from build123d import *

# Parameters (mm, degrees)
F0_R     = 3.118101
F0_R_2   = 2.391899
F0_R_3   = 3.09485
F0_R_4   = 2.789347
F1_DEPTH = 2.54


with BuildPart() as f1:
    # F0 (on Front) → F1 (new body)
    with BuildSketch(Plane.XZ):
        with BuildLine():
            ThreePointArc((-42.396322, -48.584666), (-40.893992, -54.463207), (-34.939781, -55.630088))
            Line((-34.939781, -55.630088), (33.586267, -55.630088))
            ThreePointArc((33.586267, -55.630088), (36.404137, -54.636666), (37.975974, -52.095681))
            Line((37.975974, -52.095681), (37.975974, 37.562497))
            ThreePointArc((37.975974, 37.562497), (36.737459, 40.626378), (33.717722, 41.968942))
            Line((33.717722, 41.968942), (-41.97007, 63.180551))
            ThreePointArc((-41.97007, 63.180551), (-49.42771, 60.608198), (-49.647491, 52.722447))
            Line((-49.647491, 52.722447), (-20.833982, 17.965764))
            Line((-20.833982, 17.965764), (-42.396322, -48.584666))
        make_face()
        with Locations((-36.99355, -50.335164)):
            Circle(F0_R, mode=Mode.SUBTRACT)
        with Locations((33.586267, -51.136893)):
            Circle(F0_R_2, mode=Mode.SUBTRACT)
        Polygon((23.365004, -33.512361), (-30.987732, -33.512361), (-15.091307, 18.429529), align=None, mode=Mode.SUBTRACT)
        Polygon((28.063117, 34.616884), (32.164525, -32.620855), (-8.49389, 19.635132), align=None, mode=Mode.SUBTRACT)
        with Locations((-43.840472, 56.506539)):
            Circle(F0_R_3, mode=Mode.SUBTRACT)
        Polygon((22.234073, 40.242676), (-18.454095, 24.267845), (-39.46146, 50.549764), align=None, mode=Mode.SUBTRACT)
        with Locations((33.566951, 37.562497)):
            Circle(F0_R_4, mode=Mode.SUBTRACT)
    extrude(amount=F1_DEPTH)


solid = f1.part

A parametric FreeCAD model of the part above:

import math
import FreeCAD as App
import Part
import Sketcher
from FreeCAD import Vector


def add_polygon(sketch, points):
    """Adds a closed chain of lines whose ends are joined by coincident constraints."""
    first, n = sketch.GeometryCount, len(points)
    for a, b in zip(points, points[1:] + points[:1]):
        sketch.addGeometry(Part.LineSegment(App.Vector(*a, 0), App.Vector(*b, 0)), False)
    for i in range(n):
        sketch.addConstraint(Sketcher.Constraint("Coincident", first + i, 2, first + (i + 1) % n, 1))

doc = App.newDocument("Part")
params = doc.addObject("Spreadsheet::Sheet", "Params")
for row, (alias, value) in enumerate([
    ("pad1_length", "0.1 in"),
], start=1):
    params.set(f"A{row}", alias)
    params.set(f"B{row}", "=" + value)
    params.setAlias(f"B{row}", alias)

body = doc.addObject("PartDesign::Body", "Body")

# Sketch on XZ plane
sketch1 = body.newObject("Sketcher::SketchObject", "Sketch")
sketch1.AttachmentSupport = (doc.getObject("XZ_Plane"), [""])
sketch1.MapMode = "FlatFace"
sketch1.addGeometry(Part.ArcOfCircle(Part.Circle(Vector(-36.99355, -50.335164, 0), Vector(0, 0, 1), 5.679277), math.radians(162.047679), math.radians(291.20003)), False)  # 0
sketch1.addGeometry(Part.LineSegment(Vector(-34.939781, -55.630088, 0), Vector(33.586267, -55.630088, 0)), False)  # 1
sketch1.addGeometry(Part.ArcOfCircle(Part.Circle(Vector(33.586267, -51.136893, 0), Vector(0, 0, 1), 4.493195), math.radians(-90.000004), math.radians(-12.320892)), False)  # 2
sketch1.addGeometry(Part.LineSegment(Vector(37.975974, -52.095681, 0), Vector(37.975974, 37.562497, 0)), False)  # 3
sketch1.addGeometry(Part.ArcOfCircle(Part.Circle(Vector(33.566951, 37.562498, 0), Vector(0, 0, 1), 4.409023), math.radians(-0.000008), math.radians(88.040331)), False)  # 4
sketch1.addGeometry(Part.LineSegment(Vector(33.717722, 41.968942, 0), Vector(-41.97007, 63.180551, 0)), False)  # 5
sketch1.addGeometry(Part.ArcOfCircle(Part.Circle(Vector(-43.840472, 56.50654, 0), Vector(0, 0, 1), 6.931149), math.radians(74.34439), math.radians(213.089922)), False)  # 6
sketch1.addGeometry(Part.LineSegment(Vector(-49.647491, 52.722447, 0), Vector(-20.833982, 17.965764, 0)), False)  # 7
sketch1.addGeometry(Part.LineSegment(Vector(-20.833982, 17.965764, 0), Vector(-42.396322, -48.584666, 0)), False)  # 8
sketch1.addGeometry(Part.Circle(Vector(-36.99355, -50.335164, 0), Vector(0, 0, 1), 3.118101), False)  # 9
sketch1.addGeometry(Part.Circle(Vector(33.586267, -51.136893, 0), Vector(0, 0, 1), 2.391899), False)  # 10
add_polygon(sketch1, [(-15.091307, 18.429529), (23.365004, -33.512361), (-30.987732, -33.512361)])  # lines 11-13
add_polygon(sketch1, [(-8.49389, 19.635132), (28.063117, 34.616884), (32.164525, -32.620855)])  # lines 14-16
sketch1.addGeometry(Part.Circle(Vector(-43.840472, 56.506539, 0), Vector(0, 0, 1), 3.09485), False)  # 17
add_polygon(sketch1, [(-39.46146, 50.549764), (22.234073, 40.242676), (-18.454095, 24.267845)])  # lines 18-20
sketch1.addGeometry(Part.Circle(Vector(33.566951, 37.562497, 0), Vector(0, 0, 1), 2.789347), False)  # 21
sketch1.addConstraint(Sketcher.Constraint("Coincident", 0, 2, 1, 1))
sketch1.addConstraint(Sketcher.Constraint("Coincident", 1, 2, 2, 1))
sketch1.addConstraint(Sketcher.Constraint("Coincident", 2, 2, 3, 1))
sketch1.addConstraint(Sketcher.Constraint("Coincident", 3, 2, 4, 1))
sketch1.addConstraint(Sketcher.Constraint("Coincident", 4, 2, 5, 1))
sketch1.addConstraint(Sketcher.Constraint("Coincident", 5, 2, 6, 1))
sketch1.addConstraint(Sketcher.Constraint("Coincident", 6, 2, 7, 1))
sketch1.addConstraint(Sketcher.Constraint("Coincident", 7, 2, 8, 1))
sketch1.addConstraint(Sketcher.Constraint("Coincident", 8, 2, 0, 1))
sketch1.addConstraint(Sketcher.Constraint("Horizontal", 1))
sketch1.addConstraint(Sketcher.Constraint("Vertical", 3))
sketch1.addConstraint(Sketcher.Constraint("Horizontal", 12))
sketch1.addConstraint(Sketcher.Constraint("Coincident", 9, 3, 0, 3))
sketch1.addConstraint(Sketcher.Constraint("Coincident", 10, 3, 2, 3))
sketch1.addConstraint(Sketcher.Constraint("Coincident", 17, 3, 6, 3))
sketch1.addConstraint(Sketcher.Constraint("Coincident", 21, 3, 4, 3))
sketch1.addConstraint(Sketcher.Constraint("Diameter", 9, 6.236202))
sketch1.addConstraint(Sketcher.Constraint("Diameter", 17, 6.1897))
sketch1.addConstraint(Sketcher.Constraint("Radius", 6, 6.931149))
sketch1.addConstraint(Sketcher.Constraint("Diameter", 10, 4.783798))
sketch1.addConstraint(Sketcher.Constraint("Diameter", 21, 5.578694))
sketch1.addConstraint(Sketcher.Constraint("Radius", 0, 5.679277))
sketch1.addConstraint(Sketcher.Constraint("Radius", 2, 4.493195))
sketch1.addConstraint(Sketcher.Constraint("Radius", 4, 4.409023))
sketch1.addConstraint(Sketcher.Constraint("DistanceX", 1, 1, 1, 2, 68.526048))
sketch1.addConstraint(Sketcher.Constraint("DistanceX", 0, 3, 4, 3, 70.560501))
sketch1.addConstraint(Sketcher.Constraint("DistanceX", 6, 3, 5, 2, 1.870402))
sketch1.addConstraint(Sketcher.Constraint("DistanceY", 9, 3, 8, 2, 1.750498))
sketch1.addConstraint(Sketcher.Constraint("DistanceX", 18, 2, 3, 2, 15.741901))
sketch1.addConstraint(Sketcher.Constraint("Distance", 7, 45.14693))
sketch1.addConstraint(Sketcher.Constraint("Distance", 18, 62.550578))
sketch1.addConstraint(Sketcher.Constraint("Distance", 19, 43.711809))
sketch1.addConstraint(Sketcher.Constraint("Distance", 20, 33.645931))
sketch1.addConstraint(Sketcher.Constraint("DistanceX", 12, 2, 12, 1, 54.352736))
sketch1.addConstraint(Sketcher.Constraint("DistanceY", 3, 1, 3, 2, 89.658178))
sketch1.addConstraint(Sketcher.Constraint("DistanceX", 0, 3, -1, 1, 36.99355))
sketch1.addConstraint(Sketcher.Constraint("DistanceX", 6, 3, -1, 1, 43.840472))
sketch1.addConstraint(Sketcher.Constraint("DistanceY", -1, 1, 6, 3, 56.50654))
sketch1.addConstraint(Sketcher.Constraint("DistanceX", 0, 2, -1, 1, 34.939781))
sketch1.addConstraint(Sketcher.Constraint("DistanceY", 0, 2, -1, 1, 55.630088))
sketch1.addConstraint(Sketcher.Constraint("DistanceY", 2, 2, -1, 1, 52.095681))
sketch1.addConstraint(Sketcher.Constraint("DistanceX", 6, 2, -1, 1, 49.647491))
sketch1.addConstraint(Sketcher.Constraint("DistanceX", 7, 2, -1, 1, 20.833982))
sketch1.addConstraint(Sketcher.Constraint("DistanceY", 11, 2, -1, 1, 33.512361))
sketch1.addConstraint(Sketcher.Constraint("DistanceY", -1, 1, 13, 2, 18.429529))
sketch1.addConstraint(Sketcher.Constraint("DistanceX", 16, 2, -1, 1, 8.49389))
sketch1.addConstraint(Sketcher.Constraint("DistanceY", -1, 1, 16, 2, 19.635132))
sketch1.addConstraint(Sketcher.Constraint("DistanceX", 20, 2, -1, 1, 39.46146))
sketch1.addConstraint(Sketcher.Constraint("DistanceY", 2, 3, 4, 3, 88.699391))
sketch1.addConstraint(Sketcher.Constraint("DistanceX", 4, 3, 4, 2, 0.150771))
sketch1.addConstraint(Sketcher.Constraint("DistanceX", 11, 2, 2, 2, 14.61097))
sketch1.addConstraint(Sketcher.Constraint("DistanceY", 14, 2, 4, 2, 7.352058))
sketch1.addConstraint(Sketcher.Constraint("DistanceX", 11, 2, 15, 2, 8.799521))
sketch1.addConstraint(Sketcher.Constraint("DistanceY", 10, 3, 15, 2, 18.516038))
sketch1.addConstraint(Sketcher.Constraint("DistanceY", 4, 3, 18, 2, 2.680178))
sketch1.addConstraint(Sketcher.Constraint("Distance", 11, 64.628537))
sketch1.addConstraint(Sketcher.Constraint("Distance", 14, 39.507818))
pad1 = body.newObject("PartDesign::Pad", "Pad")
pad1.Profile = sketch1
pad1.setExpression("Length", "Params.pad1_length")

doc.recompute()
